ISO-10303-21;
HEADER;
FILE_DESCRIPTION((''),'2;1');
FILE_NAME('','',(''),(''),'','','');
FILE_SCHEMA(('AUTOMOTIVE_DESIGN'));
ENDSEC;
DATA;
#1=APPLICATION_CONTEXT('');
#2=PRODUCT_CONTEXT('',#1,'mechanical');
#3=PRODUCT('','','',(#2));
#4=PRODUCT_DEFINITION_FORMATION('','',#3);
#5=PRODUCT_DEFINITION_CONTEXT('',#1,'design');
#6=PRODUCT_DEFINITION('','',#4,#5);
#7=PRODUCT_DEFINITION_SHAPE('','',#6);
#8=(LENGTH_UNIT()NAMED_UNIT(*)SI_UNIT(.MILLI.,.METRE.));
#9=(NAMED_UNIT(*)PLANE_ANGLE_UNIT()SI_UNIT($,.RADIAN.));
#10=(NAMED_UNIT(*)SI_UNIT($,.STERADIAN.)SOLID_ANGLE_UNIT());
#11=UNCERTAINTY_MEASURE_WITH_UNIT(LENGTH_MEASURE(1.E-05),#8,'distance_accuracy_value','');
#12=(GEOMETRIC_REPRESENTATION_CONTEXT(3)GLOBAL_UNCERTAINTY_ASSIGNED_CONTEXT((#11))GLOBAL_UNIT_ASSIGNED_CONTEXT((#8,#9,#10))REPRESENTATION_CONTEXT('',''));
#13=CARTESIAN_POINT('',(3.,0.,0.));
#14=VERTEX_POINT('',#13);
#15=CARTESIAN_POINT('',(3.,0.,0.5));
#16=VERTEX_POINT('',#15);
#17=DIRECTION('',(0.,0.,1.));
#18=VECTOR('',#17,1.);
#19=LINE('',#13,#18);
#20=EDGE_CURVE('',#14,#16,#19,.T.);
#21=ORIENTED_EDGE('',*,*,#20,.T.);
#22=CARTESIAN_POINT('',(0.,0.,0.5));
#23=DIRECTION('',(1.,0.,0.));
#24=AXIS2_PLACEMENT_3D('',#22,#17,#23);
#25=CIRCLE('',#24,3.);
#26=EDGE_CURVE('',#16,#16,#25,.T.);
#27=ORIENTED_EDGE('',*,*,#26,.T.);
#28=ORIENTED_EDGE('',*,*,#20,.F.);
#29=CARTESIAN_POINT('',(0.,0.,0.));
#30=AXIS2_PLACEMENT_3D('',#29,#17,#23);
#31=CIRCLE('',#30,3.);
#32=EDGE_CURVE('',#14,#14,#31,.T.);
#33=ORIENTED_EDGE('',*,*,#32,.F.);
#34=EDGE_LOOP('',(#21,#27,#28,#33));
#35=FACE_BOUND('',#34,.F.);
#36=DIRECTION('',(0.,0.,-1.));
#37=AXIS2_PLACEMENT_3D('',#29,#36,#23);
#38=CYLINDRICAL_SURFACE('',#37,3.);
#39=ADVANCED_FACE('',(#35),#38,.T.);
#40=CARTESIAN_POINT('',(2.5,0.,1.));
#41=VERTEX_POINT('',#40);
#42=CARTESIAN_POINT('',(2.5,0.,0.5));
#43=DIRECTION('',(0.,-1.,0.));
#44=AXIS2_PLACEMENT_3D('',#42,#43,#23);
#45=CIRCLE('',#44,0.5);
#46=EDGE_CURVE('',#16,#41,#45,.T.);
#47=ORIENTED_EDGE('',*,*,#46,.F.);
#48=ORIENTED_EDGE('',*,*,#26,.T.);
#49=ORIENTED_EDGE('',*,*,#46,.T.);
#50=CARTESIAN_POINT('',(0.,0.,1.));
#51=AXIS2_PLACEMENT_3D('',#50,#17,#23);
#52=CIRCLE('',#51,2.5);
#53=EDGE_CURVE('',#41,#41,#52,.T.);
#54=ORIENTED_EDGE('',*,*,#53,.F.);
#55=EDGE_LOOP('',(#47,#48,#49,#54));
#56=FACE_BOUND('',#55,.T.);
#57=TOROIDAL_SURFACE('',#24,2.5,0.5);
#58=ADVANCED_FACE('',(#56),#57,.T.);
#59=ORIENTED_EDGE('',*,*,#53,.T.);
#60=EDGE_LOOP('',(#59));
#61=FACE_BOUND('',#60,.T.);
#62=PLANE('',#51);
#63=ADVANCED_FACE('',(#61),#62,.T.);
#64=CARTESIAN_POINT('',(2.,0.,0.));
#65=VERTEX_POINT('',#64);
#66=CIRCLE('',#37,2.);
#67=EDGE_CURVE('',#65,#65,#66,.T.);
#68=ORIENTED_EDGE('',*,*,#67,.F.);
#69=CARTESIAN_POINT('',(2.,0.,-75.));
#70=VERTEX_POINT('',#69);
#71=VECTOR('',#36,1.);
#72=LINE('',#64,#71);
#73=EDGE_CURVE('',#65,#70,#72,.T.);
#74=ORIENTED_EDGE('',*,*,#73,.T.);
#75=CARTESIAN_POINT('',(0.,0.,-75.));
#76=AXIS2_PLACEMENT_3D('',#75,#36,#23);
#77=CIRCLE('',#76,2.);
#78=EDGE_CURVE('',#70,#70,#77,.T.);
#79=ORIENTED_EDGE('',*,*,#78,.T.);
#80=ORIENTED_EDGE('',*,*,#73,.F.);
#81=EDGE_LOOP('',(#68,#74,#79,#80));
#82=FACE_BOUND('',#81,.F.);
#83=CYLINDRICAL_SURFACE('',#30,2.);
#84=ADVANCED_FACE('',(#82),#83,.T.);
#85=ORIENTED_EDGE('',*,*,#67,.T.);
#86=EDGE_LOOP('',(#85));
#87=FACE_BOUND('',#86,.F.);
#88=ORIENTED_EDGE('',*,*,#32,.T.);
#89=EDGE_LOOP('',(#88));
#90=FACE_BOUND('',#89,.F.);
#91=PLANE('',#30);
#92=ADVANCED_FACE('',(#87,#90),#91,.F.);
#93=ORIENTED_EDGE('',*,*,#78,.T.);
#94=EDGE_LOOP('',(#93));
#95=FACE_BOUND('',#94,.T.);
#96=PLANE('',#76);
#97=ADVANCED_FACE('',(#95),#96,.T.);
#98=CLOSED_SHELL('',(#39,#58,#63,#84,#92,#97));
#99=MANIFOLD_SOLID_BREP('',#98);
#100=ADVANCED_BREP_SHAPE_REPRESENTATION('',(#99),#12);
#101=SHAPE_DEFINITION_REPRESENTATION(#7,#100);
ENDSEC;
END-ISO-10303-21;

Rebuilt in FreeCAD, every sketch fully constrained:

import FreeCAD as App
import Part
import Sketcher
Q = App.Units.Quantity


def edges_at(feature, points):
    """Names of the edges that pass closest to the given points."""
    edges = feature.Shape.Edges
    near = lambda p: min(range(len(edges)), key=lambda i: edges[i].distToShape(Part.Vertex(*p))[0])
    return sorted({f"Edge{near(p) + 1}" for p in points})

doc = App.newDocument("Part")
body = doc.addObject("PartDesign::Body", "Body")

# Sketch on XY plane
sketch1 = doc.addObject("Sketcher::SketchObject", "Sketch")
body.addObject(sketch1)
sketch1.AttachmentSupport = (doc.XY_Plane, [""])
sketch1.MapMode = "FlatFace"
sketch1.addGeometry(Part.Circle(App.Vector(0, 0, 0), App.Vector(0, 0, 1), 3), False)
sketch1.addConstraint(Sketcher.Constraint("Coincident", 0, 3, -1, 1))
sketch1.addConstraint(Sketcher.Constraint("Diameter", 0, Q("6 mm")))
pad1 = doc.addObject("PartDesign::Pad", "Pad")
body.addObject(pad1)
pad1.Profile = sketch1
pad1.Length = 1
doc.recompute()

fillet = doc.addObject("PartDesign::Fillet", "Fillet")
body.addObject(fillet)
fillet.Base = (pad1, edges_at(pad1, [(-3, 0, 1)]))
fillet.Radius = 0.5

# Sketch on XY plane
sketch2 = doc.addObject("Sketcher::SketchObject", "Sketch001")
body.addObject(sketch2)
sketch2.AttachmentSupport = (doc.XY_Plane, [""])
sketch2.MapMode = "FlatFace"
sketch2.addGeometry(Part.Circle(App.Vector(0, 0, 0), App.Vector(0, 0, 1), 2), False)
sketch2.addConstraint(Sketcher.Constraint("Coincident", 0, 3, -1, 1))
sketch2.addConstraint(Sketcher.Constraint("Diameter", 0, Q("4 mm")))
pad2 = doc.addObject("PartDesign::Pad", "Pad001")
body.addObject(pad2)
pad2.Profile = sketch2
pad2.Length = 75
pad2.Reversed = True

doc.recompute()
